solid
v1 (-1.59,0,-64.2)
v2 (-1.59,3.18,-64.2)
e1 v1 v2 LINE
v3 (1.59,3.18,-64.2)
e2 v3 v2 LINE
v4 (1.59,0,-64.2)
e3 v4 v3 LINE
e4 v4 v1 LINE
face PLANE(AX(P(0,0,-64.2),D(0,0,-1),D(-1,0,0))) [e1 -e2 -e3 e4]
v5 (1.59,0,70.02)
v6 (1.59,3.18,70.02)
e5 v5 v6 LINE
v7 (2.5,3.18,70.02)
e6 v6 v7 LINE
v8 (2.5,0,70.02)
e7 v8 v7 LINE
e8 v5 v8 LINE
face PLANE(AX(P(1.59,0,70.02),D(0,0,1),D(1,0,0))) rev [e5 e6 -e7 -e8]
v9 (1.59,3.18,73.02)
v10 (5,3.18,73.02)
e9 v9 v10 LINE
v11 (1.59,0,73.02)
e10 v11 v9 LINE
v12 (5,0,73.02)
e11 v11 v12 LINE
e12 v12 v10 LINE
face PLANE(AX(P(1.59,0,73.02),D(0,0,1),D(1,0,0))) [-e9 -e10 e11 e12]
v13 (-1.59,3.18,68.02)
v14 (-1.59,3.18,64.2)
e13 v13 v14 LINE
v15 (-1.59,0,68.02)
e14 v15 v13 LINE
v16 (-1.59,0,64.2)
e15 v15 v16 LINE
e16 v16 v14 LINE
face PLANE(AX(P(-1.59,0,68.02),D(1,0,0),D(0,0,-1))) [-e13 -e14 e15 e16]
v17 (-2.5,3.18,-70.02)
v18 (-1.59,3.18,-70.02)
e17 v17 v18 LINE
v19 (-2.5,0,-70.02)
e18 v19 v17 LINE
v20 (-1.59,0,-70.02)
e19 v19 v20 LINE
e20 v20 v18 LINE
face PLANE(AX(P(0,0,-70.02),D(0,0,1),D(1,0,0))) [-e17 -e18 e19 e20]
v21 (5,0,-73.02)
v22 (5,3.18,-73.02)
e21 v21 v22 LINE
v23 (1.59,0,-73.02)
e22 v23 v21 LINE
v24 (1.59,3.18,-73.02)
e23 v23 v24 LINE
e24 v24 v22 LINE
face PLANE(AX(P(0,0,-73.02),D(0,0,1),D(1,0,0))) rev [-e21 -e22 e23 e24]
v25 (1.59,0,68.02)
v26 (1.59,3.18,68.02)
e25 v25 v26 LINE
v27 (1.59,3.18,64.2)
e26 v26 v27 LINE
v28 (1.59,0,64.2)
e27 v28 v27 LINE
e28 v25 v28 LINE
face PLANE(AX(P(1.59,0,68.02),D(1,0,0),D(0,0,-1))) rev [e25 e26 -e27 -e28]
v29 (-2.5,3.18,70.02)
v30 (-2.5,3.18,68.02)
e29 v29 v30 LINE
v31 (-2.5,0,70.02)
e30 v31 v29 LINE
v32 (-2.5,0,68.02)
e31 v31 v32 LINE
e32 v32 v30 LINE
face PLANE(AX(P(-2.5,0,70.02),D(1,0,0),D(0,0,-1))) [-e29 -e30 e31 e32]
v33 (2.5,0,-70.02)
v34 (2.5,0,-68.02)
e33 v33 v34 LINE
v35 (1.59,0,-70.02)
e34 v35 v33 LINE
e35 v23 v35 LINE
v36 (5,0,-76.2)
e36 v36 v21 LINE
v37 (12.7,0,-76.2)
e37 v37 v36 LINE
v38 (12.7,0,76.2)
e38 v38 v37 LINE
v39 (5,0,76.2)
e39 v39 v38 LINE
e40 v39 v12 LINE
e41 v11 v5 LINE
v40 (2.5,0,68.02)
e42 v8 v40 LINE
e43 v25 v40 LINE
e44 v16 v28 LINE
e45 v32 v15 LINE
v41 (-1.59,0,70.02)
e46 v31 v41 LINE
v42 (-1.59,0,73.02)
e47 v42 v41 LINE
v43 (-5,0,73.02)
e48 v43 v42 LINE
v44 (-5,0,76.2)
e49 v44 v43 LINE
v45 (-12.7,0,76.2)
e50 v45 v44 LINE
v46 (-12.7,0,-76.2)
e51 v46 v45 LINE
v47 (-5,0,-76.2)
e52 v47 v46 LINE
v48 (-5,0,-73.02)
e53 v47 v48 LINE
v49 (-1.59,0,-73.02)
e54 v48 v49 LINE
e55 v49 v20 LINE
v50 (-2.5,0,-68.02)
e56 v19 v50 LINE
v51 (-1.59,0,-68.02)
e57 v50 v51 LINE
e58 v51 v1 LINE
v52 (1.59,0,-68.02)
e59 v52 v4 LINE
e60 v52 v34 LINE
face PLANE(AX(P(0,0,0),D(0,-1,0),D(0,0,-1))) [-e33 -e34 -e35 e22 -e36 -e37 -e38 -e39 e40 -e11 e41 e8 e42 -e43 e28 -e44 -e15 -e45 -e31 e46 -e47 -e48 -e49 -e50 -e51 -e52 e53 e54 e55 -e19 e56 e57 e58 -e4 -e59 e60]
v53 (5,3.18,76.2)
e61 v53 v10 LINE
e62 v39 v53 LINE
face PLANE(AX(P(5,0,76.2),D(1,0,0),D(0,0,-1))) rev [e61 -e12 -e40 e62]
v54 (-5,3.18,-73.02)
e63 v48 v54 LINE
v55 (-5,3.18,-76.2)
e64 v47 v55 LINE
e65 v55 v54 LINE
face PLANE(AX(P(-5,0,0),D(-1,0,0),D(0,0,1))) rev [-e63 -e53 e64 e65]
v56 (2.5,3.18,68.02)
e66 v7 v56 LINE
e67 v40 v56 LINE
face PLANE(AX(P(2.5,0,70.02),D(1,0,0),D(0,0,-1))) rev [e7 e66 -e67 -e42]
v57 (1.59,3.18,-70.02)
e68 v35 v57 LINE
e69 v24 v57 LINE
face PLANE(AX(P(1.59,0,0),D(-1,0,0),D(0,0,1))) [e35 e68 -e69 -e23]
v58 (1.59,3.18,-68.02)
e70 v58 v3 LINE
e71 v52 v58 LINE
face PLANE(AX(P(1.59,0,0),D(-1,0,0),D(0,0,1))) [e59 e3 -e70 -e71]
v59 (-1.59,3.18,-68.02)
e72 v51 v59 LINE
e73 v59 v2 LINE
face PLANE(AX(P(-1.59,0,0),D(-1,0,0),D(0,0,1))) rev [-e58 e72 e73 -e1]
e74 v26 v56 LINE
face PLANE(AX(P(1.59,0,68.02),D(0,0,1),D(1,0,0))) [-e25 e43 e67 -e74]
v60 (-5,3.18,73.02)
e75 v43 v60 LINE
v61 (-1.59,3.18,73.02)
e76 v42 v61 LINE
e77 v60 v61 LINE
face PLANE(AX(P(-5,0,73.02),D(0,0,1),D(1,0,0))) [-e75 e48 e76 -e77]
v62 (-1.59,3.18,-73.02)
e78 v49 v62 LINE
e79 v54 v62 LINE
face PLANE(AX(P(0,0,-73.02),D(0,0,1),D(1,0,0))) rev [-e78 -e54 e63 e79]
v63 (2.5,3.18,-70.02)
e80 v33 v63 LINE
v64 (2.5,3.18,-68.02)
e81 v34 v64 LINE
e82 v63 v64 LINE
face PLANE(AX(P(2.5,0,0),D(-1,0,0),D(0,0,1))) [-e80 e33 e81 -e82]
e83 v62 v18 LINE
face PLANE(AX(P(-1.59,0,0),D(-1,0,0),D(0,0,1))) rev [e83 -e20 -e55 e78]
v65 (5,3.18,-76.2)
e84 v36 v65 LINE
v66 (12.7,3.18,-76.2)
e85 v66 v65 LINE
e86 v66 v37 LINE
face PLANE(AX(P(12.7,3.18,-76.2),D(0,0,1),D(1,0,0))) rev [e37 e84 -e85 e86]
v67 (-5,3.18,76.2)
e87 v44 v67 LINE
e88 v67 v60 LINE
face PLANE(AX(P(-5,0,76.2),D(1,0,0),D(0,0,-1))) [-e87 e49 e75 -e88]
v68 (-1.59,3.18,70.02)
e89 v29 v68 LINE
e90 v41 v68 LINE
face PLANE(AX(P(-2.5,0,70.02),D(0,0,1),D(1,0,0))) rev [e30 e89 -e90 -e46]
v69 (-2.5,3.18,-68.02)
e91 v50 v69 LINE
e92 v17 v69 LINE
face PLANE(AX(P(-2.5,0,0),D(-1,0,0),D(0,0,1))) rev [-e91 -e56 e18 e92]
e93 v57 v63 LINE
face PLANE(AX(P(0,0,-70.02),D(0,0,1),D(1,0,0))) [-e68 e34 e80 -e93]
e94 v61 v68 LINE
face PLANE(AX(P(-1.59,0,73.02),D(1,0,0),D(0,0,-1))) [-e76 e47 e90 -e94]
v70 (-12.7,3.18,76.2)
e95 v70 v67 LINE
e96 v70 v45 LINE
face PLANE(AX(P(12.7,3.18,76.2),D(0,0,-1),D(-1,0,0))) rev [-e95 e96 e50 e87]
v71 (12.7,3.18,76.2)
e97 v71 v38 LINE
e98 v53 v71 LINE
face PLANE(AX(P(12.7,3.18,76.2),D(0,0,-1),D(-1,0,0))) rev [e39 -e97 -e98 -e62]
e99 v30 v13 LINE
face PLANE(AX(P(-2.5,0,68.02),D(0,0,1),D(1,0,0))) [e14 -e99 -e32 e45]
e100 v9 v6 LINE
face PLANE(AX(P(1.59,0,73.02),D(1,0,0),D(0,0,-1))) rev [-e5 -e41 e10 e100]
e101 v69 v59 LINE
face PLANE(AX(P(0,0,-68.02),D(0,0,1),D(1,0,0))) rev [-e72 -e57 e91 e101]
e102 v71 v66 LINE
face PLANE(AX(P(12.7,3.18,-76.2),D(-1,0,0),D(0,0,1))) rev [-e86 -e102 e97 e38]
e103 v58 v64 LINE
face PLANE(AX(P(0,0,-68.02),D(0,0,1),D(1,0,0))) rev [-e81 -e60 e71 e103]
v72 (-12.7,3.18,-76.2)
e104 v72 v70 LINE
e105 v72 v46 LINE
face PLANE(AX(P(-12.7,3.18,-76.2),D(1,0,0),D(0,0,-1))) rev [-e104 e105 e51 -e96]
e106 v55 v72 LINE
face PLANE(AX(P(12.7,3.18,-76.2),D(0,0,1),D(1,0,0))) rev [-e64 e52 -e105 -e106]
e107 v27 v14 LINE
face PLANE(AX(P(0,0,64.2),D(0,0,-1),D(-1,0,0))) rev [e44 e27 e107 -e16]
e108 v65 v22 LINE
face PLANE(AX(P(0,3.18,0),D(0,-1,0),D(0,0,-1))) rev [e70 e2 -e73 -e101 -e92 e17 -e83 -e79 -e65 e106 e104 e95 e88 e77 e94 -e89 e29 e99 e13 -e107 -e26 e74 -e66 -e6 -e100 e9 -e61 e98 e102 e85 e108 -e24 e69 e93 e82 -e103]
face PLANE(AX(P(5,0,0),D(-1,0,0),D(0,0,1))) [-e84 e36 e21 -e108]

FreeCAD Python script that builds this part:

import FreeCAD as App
import Part
import Sketcher

V = App.Vector
Q = App.Units.Quantity

doc = App.newDocument("Part")
body = doc.addObject("PartDesign::Body", "Body")

sketch1 = body.newObject("Sketcher::SketchObject", "Sketch")
sketch1.AttachmentSupport = (doc.getObject("XZ_Plane"), [""])
sketch1.MapMode = "FlatFace"
sketch1.addGeometry([
    Part.LineSegment(V(-13, -76, 0), V(-13, 76, 0)),
    Part.LineSegment(V(-13, 76, 0), V(13, 76, 0)),
    Part.LineSegment(V(13, 76, 0), V(13, -76, 0)),
    Part.LineSegment(V(13, -76, 0), V(-13, -76, 0)),
], False)
sketch1.addConstraint([
    Sketcher.Constraint("Coincident", 0, 2, 1, 1),
    Sketcher.Constraint("Coincident", 1, 2, 2, 1),
    Sketcher.Constraint("Coincident", 2, 2, 3, 1),
    Sketcher.Constraint("Coincident", 3, 2, 0, 1),
    Sketcher.Constraint("Vertical", 0),
    Sketcher.Constraint("Horizontal", 1),
    Sketcher.Constraint("Vertical", 2),
    Sketcher.Constraint("Horizontal", 3),
    Sketcher.Constraint("Symmetric", 0, 2, 2, 2, -1, 1),
    Sketcher.Constraint("DistanceX", 1, 1, 1, 2, Q("25.4 mm")),
    Sketcher.Constraint("DistanceY", 0, 1, 0, 2, Q("152.4 mm")),
])
pad1 = body.newObject("PartDesign::Pad", "Pad")
pad1.Profile = sketch1
pad1.Length = 3.18
pad1.Reversed = True

sketch2 = body.newObject("Sketcher::SketchObject", "Sketch001")
sketch2.AttachmentSupport = (doc.getObject("XZ_Plane"), [""])
sketch2.MapMode = "FlatFace"
sketch2.AttachmentOffset = App.Placement(V(0, 0, -3.18), App.Rotation())
sketch2.addGeometry([
    Part.LineSegment(V(-1.6, -73, 0), V(-1.6, -70, 0)),
    Part.LineSegment(V(-1.6, -70, 0), V(-2.5, -70, 0)),
    Part.LineSegment(V(-2.5, -70, 0), V(-2.5, -68, 0)),
    Part.LineSegment(V(-2.5, -68, 0), V(-1.6, -68, 0)),
    Part.LineSegment(V(-1.6, -68, 0), V(-1.6, -64.2, 0)),
    Part.LineSegment(V(-1.6, -64.2, 0), V(1.6, -64.2, 0)),
    Part.LineSegment(V(1.6, -64.2, 0), V(1.6, -68, 0)),
    Part.LineSegment(V(1.6, -68, 0), V(2.5, -68, 0)),
    Part.LineSegment(V(2.5, -68, 0), V(2.5, -70, 0)),
    Part.LineSegment(V(2.5, -70, 0), V(1.6, -70, 0)),
    Part.LineSegment(V(1.6, -70, 0), V(1.6, -73, 0)),
    Part.LineSegment(V(1.6, -73, 0), V(5, -73, 0)),
    Part.LineSegment(V(5, -73, 0), V(5, -76.2, 0)),
    Part.LineSegment(V(5, -76.2, 0), V(-5, -76.2, 0)),
    Part.LineSegment(V(-5, -76.2, 0), V(-5, -73, 0)),
    Part.LineSegment(V(-5, -73, 0), V(-1.6, -73, 0)),
    Part.LineSegment(V(-1.6, 64.2, 0), V(-1.6, 68, 0)),
    Part.LineSegment(V(-1.6, 68, 0), V(-2.5, 68, 0)),
    Part.LineSegment(V(-2.5, 68, 0), V(-2.5, 70, 0)),
    Part.LineSegment(V(-2.5, 70, 0), V(-1.6, 70, 0)),
    Part.LineSegment(V(-1.6, 70, 0), V(-1.6, 73, 0)),
    Part.LineSegment(V(-1.6, 73, 0), V(-5, 73, 0)),
    Part.LineSegment(V(-5, 73, 0), V(-5, 76.2, 0)),
    Part.LineSegment(V(-5, 76.2, 0), V(5, 76.2, 0)),
    Part.LineSegment(V(5, 76.2, 0), V(5, 73, 0)),
    Part.LineSegment(V(5, 73, 0), V(1.6, 73, 0)),
    Part.LineSegment(V(1.6, 73, 0), V(1.6, 70, 0)),
    Part.LineSegment(V(1.6, 70, 0), V(2.5, 70, 0)),
    Part.LineSegment(V(2.5, 70, 0), V(2.5, 68, 0)),
    Part.LineSegment(V(2.5, 68, 0), V(1.6, 68, 0)),
    Part.LineSegment(V(1.6, 68, 0), V(1.6, 64.2, 0)),
    Part.LineSegment(V(1.6, 64.2, 0), V(-1.6, 64.2, 0)),
], False)
sketch2.addConstraint([
    Sketcher.Constraint("Coincident", 0, 2, 1, 1),
    Sketcher.Constraint("Coincident", 1, 2, 2, 1),
    Sketcher.Constraint("Coincident", 2, 2, 3, 1),
    Sketcher.Constraint("Coincident", 3, 2, 4, 1),
    Sketcher.Constraint("Coincident", 4, 2, 5, 1),
    Sketcher.Constraint("Coincident", 5, 2, 6, 1),
    Sketcher.Constraint("Coincident", 6, 2, 7, 1),
    Sketcher.Constraint("Coincident", 7, 2, 8, 1),
    Sketcher.Constraint("Coincident", 8, 2, 9, 1),
    Sketcher.Constraint("Coincident", 9, 2, 10, 1),
    Sketcher.Constraint("Coincident", 10, 2, 11, 1),
    Sketcher.Constraint("Coincident", 11, 2, 12, 1),
    Sketcher.Constraint("Coincident", 12, 2, 13, 1),
    Sketcher.Constraint("Coincident", 13, 2, 14, 1),
    Sketcher.Constraint("Coincident", 14, 2, 15, 1),
    Sketcher.Constraint("Coincident", 15, 2, 0, 1),
    Sketcher.Constraint("Coincident", 16, 2, 17, 1),
    Sketcher.Constraint("Coincident", 17, 2, 18, 1),
    Sketcher.Constraint("Coincident", 18, 2, 19, 1),
    Sketcher.Constraint("Coincident", 19, 2, 20, 1),
    Sketcher.Constraint("Coincident", 20, 2, 21, 1),
    Sketcher.Constraint("Coincident", 21, 2, 22, 1),
    Sketcher.Constraint("Coincident", 22, 2, 23, 1),
    Sketcher.Constraint("Coincident", 23, 2, 24, 1),
    Sketcher.Constraint("Coincident", 24, 2, 25, 1),
    Sketcher.Constraint("Coincident", 25, 2, 26, 1),
    Sketcher.Constraint("Coincident", 26, 2, 27, 1),
    Sketcher.Constraint("Coincident", 27, 2, 28, 1),
    Sketcher.Constraint("Coincident", 28, 2, 29, 1),
    Sketcher.Constraint("Coincident", 29, 2, 30, 1),
    Sketcher.Constraint("Coincident", 30, 2, 31, 1),
    Sketcher.Constraint("Coincident", 31, 2, 16, 1),
    Sketcher.Constraint("Vertical", 0),
    Sketcher.Constraint("Horizontal", 1),
    Sketcher.Constraint("Vertical", 2),
    Sketcher.Constraint("Horizontal", 3),
    Sketcher.Constraint("Vertical", 4),
    Sketcher.Constraint("Horizontal", 5),
    Sketcher.Constraint("Vertical", 6),
    Sketcher.Constraint("Horizontal", 7),
    Sketcher.Constraint("Vertical", 8),
    Sketcher.Constraint("Horizontal", 9),
    Sketcher.Constraint("Vertical", 10),
    Sketcher.Constraint("Horizontal", 11),
    Sketcher.Constraint("Vertical", 12),
    Sketcher.Constraint("Horizontal", 13),
    Sketcher.Constraint("Vertical", 14),
    Sketcher.Constraint("Horizontal", 15),
    Sketcher.Constraint("Vertical", 16),
    Sketcher.Constraint("Horizontal", 17),
    Sketcher.Constraint("Vertical", 18),
    Sketcher.Constraint("Horizontal", 19),
    Sketcher.Constraint("Vertical", 20),
    Sketcher.Constraint("Horizontal", 21),
    Sketcher.Constraint("Vertical", 22),
    Sketcher.Constraint("Horizontal", 23),
    Sketcher.Constraint("Vertical", 24),
    Sketcher.Constraint("Horizontal", 25),
    Sketcher.Constraint("Vertical", 26),
    Sketcher.Constraint("Horizontal", 27),
    Sketcher.Constraint("Vertical", 28),
    Sketcher.Constraint("Horizontal", 29),
    Sketcher.Constraint("Vertical", 30),
    Sketcher.Constraint("Horizontal", 31),
    Sketcher.Constraint("Symmetric", 6, 2, 16, 2, -1, 1),
    Sketcher.Constraint("Symmetric", 8, 2, 18, 2, -1, 1),
    Sketcher.Constraint("Symmetric", 10, 2, 20, 2, -1, 1),
    Sketcher.Constraint("Symmetric", 12, 2, 22, 2, -1, 1),
    Sketcher.Constraint("Symmetric", 14, 2, 24, 2, -1, 1),
    Sketcher.Constraint("Symmetric", 0, 2, 26, 2, -1, 1),
    Sketcher.Constraint("Symmetric", 2, 2, 28, 2, -1, 1),
    Sketcher.Constraint("Symmetric", 4, 2, 30, 2, -1, 1),
    Sketcher.Constraint("Symmetric", 3, 2, 6, 2, -2),
    Sketcher.Constraint("Symmetric", 1, 2, 8, 2, -2),
    Sketcher.Constraint("Symmetric", 11, 2, 14, 2, -2),
    Sketcher.Constraint("Vertical", 0, 2, 3, 2),
    Sketcher.Constraint("Vertical", 6, 2, 9, 2),
    Sketcher.Constraint("Equal", 31, 12),
    Sketcher.Constraint("DistanceX", 13, 2, 13, 1, Q("10 mm")),
    Sketcher.Constraint("DistanceY", 0, 1, 0, 2, Q("3 mm")),
    Sketcher.Constraint("DistanceY", 2, 1, 2, 2, Q("2 mm")),
    Sketcher.Constraint("DistanceX", 2, 2, 7, 2, Q("5 mm")),
    Sketcher.Constraint("DistanceX", 1, 2, 1, 1, Q("0.91 mm")),
    Sketcher.Constraint("DistanceY", 4, 1, 4, 2, Q("3.82 mm")),
    Sketcher.Constraint("DistanceY", 4, 2, -1, 1, Q("64.2 mm")),
])
pocket1 = body.newObject("PartDesign::Pocket", "Pocket")
pocket1.Profile = sketch2
pocket1.Length = 3.18
pocket1.Reversed = True

doc.recompute()
